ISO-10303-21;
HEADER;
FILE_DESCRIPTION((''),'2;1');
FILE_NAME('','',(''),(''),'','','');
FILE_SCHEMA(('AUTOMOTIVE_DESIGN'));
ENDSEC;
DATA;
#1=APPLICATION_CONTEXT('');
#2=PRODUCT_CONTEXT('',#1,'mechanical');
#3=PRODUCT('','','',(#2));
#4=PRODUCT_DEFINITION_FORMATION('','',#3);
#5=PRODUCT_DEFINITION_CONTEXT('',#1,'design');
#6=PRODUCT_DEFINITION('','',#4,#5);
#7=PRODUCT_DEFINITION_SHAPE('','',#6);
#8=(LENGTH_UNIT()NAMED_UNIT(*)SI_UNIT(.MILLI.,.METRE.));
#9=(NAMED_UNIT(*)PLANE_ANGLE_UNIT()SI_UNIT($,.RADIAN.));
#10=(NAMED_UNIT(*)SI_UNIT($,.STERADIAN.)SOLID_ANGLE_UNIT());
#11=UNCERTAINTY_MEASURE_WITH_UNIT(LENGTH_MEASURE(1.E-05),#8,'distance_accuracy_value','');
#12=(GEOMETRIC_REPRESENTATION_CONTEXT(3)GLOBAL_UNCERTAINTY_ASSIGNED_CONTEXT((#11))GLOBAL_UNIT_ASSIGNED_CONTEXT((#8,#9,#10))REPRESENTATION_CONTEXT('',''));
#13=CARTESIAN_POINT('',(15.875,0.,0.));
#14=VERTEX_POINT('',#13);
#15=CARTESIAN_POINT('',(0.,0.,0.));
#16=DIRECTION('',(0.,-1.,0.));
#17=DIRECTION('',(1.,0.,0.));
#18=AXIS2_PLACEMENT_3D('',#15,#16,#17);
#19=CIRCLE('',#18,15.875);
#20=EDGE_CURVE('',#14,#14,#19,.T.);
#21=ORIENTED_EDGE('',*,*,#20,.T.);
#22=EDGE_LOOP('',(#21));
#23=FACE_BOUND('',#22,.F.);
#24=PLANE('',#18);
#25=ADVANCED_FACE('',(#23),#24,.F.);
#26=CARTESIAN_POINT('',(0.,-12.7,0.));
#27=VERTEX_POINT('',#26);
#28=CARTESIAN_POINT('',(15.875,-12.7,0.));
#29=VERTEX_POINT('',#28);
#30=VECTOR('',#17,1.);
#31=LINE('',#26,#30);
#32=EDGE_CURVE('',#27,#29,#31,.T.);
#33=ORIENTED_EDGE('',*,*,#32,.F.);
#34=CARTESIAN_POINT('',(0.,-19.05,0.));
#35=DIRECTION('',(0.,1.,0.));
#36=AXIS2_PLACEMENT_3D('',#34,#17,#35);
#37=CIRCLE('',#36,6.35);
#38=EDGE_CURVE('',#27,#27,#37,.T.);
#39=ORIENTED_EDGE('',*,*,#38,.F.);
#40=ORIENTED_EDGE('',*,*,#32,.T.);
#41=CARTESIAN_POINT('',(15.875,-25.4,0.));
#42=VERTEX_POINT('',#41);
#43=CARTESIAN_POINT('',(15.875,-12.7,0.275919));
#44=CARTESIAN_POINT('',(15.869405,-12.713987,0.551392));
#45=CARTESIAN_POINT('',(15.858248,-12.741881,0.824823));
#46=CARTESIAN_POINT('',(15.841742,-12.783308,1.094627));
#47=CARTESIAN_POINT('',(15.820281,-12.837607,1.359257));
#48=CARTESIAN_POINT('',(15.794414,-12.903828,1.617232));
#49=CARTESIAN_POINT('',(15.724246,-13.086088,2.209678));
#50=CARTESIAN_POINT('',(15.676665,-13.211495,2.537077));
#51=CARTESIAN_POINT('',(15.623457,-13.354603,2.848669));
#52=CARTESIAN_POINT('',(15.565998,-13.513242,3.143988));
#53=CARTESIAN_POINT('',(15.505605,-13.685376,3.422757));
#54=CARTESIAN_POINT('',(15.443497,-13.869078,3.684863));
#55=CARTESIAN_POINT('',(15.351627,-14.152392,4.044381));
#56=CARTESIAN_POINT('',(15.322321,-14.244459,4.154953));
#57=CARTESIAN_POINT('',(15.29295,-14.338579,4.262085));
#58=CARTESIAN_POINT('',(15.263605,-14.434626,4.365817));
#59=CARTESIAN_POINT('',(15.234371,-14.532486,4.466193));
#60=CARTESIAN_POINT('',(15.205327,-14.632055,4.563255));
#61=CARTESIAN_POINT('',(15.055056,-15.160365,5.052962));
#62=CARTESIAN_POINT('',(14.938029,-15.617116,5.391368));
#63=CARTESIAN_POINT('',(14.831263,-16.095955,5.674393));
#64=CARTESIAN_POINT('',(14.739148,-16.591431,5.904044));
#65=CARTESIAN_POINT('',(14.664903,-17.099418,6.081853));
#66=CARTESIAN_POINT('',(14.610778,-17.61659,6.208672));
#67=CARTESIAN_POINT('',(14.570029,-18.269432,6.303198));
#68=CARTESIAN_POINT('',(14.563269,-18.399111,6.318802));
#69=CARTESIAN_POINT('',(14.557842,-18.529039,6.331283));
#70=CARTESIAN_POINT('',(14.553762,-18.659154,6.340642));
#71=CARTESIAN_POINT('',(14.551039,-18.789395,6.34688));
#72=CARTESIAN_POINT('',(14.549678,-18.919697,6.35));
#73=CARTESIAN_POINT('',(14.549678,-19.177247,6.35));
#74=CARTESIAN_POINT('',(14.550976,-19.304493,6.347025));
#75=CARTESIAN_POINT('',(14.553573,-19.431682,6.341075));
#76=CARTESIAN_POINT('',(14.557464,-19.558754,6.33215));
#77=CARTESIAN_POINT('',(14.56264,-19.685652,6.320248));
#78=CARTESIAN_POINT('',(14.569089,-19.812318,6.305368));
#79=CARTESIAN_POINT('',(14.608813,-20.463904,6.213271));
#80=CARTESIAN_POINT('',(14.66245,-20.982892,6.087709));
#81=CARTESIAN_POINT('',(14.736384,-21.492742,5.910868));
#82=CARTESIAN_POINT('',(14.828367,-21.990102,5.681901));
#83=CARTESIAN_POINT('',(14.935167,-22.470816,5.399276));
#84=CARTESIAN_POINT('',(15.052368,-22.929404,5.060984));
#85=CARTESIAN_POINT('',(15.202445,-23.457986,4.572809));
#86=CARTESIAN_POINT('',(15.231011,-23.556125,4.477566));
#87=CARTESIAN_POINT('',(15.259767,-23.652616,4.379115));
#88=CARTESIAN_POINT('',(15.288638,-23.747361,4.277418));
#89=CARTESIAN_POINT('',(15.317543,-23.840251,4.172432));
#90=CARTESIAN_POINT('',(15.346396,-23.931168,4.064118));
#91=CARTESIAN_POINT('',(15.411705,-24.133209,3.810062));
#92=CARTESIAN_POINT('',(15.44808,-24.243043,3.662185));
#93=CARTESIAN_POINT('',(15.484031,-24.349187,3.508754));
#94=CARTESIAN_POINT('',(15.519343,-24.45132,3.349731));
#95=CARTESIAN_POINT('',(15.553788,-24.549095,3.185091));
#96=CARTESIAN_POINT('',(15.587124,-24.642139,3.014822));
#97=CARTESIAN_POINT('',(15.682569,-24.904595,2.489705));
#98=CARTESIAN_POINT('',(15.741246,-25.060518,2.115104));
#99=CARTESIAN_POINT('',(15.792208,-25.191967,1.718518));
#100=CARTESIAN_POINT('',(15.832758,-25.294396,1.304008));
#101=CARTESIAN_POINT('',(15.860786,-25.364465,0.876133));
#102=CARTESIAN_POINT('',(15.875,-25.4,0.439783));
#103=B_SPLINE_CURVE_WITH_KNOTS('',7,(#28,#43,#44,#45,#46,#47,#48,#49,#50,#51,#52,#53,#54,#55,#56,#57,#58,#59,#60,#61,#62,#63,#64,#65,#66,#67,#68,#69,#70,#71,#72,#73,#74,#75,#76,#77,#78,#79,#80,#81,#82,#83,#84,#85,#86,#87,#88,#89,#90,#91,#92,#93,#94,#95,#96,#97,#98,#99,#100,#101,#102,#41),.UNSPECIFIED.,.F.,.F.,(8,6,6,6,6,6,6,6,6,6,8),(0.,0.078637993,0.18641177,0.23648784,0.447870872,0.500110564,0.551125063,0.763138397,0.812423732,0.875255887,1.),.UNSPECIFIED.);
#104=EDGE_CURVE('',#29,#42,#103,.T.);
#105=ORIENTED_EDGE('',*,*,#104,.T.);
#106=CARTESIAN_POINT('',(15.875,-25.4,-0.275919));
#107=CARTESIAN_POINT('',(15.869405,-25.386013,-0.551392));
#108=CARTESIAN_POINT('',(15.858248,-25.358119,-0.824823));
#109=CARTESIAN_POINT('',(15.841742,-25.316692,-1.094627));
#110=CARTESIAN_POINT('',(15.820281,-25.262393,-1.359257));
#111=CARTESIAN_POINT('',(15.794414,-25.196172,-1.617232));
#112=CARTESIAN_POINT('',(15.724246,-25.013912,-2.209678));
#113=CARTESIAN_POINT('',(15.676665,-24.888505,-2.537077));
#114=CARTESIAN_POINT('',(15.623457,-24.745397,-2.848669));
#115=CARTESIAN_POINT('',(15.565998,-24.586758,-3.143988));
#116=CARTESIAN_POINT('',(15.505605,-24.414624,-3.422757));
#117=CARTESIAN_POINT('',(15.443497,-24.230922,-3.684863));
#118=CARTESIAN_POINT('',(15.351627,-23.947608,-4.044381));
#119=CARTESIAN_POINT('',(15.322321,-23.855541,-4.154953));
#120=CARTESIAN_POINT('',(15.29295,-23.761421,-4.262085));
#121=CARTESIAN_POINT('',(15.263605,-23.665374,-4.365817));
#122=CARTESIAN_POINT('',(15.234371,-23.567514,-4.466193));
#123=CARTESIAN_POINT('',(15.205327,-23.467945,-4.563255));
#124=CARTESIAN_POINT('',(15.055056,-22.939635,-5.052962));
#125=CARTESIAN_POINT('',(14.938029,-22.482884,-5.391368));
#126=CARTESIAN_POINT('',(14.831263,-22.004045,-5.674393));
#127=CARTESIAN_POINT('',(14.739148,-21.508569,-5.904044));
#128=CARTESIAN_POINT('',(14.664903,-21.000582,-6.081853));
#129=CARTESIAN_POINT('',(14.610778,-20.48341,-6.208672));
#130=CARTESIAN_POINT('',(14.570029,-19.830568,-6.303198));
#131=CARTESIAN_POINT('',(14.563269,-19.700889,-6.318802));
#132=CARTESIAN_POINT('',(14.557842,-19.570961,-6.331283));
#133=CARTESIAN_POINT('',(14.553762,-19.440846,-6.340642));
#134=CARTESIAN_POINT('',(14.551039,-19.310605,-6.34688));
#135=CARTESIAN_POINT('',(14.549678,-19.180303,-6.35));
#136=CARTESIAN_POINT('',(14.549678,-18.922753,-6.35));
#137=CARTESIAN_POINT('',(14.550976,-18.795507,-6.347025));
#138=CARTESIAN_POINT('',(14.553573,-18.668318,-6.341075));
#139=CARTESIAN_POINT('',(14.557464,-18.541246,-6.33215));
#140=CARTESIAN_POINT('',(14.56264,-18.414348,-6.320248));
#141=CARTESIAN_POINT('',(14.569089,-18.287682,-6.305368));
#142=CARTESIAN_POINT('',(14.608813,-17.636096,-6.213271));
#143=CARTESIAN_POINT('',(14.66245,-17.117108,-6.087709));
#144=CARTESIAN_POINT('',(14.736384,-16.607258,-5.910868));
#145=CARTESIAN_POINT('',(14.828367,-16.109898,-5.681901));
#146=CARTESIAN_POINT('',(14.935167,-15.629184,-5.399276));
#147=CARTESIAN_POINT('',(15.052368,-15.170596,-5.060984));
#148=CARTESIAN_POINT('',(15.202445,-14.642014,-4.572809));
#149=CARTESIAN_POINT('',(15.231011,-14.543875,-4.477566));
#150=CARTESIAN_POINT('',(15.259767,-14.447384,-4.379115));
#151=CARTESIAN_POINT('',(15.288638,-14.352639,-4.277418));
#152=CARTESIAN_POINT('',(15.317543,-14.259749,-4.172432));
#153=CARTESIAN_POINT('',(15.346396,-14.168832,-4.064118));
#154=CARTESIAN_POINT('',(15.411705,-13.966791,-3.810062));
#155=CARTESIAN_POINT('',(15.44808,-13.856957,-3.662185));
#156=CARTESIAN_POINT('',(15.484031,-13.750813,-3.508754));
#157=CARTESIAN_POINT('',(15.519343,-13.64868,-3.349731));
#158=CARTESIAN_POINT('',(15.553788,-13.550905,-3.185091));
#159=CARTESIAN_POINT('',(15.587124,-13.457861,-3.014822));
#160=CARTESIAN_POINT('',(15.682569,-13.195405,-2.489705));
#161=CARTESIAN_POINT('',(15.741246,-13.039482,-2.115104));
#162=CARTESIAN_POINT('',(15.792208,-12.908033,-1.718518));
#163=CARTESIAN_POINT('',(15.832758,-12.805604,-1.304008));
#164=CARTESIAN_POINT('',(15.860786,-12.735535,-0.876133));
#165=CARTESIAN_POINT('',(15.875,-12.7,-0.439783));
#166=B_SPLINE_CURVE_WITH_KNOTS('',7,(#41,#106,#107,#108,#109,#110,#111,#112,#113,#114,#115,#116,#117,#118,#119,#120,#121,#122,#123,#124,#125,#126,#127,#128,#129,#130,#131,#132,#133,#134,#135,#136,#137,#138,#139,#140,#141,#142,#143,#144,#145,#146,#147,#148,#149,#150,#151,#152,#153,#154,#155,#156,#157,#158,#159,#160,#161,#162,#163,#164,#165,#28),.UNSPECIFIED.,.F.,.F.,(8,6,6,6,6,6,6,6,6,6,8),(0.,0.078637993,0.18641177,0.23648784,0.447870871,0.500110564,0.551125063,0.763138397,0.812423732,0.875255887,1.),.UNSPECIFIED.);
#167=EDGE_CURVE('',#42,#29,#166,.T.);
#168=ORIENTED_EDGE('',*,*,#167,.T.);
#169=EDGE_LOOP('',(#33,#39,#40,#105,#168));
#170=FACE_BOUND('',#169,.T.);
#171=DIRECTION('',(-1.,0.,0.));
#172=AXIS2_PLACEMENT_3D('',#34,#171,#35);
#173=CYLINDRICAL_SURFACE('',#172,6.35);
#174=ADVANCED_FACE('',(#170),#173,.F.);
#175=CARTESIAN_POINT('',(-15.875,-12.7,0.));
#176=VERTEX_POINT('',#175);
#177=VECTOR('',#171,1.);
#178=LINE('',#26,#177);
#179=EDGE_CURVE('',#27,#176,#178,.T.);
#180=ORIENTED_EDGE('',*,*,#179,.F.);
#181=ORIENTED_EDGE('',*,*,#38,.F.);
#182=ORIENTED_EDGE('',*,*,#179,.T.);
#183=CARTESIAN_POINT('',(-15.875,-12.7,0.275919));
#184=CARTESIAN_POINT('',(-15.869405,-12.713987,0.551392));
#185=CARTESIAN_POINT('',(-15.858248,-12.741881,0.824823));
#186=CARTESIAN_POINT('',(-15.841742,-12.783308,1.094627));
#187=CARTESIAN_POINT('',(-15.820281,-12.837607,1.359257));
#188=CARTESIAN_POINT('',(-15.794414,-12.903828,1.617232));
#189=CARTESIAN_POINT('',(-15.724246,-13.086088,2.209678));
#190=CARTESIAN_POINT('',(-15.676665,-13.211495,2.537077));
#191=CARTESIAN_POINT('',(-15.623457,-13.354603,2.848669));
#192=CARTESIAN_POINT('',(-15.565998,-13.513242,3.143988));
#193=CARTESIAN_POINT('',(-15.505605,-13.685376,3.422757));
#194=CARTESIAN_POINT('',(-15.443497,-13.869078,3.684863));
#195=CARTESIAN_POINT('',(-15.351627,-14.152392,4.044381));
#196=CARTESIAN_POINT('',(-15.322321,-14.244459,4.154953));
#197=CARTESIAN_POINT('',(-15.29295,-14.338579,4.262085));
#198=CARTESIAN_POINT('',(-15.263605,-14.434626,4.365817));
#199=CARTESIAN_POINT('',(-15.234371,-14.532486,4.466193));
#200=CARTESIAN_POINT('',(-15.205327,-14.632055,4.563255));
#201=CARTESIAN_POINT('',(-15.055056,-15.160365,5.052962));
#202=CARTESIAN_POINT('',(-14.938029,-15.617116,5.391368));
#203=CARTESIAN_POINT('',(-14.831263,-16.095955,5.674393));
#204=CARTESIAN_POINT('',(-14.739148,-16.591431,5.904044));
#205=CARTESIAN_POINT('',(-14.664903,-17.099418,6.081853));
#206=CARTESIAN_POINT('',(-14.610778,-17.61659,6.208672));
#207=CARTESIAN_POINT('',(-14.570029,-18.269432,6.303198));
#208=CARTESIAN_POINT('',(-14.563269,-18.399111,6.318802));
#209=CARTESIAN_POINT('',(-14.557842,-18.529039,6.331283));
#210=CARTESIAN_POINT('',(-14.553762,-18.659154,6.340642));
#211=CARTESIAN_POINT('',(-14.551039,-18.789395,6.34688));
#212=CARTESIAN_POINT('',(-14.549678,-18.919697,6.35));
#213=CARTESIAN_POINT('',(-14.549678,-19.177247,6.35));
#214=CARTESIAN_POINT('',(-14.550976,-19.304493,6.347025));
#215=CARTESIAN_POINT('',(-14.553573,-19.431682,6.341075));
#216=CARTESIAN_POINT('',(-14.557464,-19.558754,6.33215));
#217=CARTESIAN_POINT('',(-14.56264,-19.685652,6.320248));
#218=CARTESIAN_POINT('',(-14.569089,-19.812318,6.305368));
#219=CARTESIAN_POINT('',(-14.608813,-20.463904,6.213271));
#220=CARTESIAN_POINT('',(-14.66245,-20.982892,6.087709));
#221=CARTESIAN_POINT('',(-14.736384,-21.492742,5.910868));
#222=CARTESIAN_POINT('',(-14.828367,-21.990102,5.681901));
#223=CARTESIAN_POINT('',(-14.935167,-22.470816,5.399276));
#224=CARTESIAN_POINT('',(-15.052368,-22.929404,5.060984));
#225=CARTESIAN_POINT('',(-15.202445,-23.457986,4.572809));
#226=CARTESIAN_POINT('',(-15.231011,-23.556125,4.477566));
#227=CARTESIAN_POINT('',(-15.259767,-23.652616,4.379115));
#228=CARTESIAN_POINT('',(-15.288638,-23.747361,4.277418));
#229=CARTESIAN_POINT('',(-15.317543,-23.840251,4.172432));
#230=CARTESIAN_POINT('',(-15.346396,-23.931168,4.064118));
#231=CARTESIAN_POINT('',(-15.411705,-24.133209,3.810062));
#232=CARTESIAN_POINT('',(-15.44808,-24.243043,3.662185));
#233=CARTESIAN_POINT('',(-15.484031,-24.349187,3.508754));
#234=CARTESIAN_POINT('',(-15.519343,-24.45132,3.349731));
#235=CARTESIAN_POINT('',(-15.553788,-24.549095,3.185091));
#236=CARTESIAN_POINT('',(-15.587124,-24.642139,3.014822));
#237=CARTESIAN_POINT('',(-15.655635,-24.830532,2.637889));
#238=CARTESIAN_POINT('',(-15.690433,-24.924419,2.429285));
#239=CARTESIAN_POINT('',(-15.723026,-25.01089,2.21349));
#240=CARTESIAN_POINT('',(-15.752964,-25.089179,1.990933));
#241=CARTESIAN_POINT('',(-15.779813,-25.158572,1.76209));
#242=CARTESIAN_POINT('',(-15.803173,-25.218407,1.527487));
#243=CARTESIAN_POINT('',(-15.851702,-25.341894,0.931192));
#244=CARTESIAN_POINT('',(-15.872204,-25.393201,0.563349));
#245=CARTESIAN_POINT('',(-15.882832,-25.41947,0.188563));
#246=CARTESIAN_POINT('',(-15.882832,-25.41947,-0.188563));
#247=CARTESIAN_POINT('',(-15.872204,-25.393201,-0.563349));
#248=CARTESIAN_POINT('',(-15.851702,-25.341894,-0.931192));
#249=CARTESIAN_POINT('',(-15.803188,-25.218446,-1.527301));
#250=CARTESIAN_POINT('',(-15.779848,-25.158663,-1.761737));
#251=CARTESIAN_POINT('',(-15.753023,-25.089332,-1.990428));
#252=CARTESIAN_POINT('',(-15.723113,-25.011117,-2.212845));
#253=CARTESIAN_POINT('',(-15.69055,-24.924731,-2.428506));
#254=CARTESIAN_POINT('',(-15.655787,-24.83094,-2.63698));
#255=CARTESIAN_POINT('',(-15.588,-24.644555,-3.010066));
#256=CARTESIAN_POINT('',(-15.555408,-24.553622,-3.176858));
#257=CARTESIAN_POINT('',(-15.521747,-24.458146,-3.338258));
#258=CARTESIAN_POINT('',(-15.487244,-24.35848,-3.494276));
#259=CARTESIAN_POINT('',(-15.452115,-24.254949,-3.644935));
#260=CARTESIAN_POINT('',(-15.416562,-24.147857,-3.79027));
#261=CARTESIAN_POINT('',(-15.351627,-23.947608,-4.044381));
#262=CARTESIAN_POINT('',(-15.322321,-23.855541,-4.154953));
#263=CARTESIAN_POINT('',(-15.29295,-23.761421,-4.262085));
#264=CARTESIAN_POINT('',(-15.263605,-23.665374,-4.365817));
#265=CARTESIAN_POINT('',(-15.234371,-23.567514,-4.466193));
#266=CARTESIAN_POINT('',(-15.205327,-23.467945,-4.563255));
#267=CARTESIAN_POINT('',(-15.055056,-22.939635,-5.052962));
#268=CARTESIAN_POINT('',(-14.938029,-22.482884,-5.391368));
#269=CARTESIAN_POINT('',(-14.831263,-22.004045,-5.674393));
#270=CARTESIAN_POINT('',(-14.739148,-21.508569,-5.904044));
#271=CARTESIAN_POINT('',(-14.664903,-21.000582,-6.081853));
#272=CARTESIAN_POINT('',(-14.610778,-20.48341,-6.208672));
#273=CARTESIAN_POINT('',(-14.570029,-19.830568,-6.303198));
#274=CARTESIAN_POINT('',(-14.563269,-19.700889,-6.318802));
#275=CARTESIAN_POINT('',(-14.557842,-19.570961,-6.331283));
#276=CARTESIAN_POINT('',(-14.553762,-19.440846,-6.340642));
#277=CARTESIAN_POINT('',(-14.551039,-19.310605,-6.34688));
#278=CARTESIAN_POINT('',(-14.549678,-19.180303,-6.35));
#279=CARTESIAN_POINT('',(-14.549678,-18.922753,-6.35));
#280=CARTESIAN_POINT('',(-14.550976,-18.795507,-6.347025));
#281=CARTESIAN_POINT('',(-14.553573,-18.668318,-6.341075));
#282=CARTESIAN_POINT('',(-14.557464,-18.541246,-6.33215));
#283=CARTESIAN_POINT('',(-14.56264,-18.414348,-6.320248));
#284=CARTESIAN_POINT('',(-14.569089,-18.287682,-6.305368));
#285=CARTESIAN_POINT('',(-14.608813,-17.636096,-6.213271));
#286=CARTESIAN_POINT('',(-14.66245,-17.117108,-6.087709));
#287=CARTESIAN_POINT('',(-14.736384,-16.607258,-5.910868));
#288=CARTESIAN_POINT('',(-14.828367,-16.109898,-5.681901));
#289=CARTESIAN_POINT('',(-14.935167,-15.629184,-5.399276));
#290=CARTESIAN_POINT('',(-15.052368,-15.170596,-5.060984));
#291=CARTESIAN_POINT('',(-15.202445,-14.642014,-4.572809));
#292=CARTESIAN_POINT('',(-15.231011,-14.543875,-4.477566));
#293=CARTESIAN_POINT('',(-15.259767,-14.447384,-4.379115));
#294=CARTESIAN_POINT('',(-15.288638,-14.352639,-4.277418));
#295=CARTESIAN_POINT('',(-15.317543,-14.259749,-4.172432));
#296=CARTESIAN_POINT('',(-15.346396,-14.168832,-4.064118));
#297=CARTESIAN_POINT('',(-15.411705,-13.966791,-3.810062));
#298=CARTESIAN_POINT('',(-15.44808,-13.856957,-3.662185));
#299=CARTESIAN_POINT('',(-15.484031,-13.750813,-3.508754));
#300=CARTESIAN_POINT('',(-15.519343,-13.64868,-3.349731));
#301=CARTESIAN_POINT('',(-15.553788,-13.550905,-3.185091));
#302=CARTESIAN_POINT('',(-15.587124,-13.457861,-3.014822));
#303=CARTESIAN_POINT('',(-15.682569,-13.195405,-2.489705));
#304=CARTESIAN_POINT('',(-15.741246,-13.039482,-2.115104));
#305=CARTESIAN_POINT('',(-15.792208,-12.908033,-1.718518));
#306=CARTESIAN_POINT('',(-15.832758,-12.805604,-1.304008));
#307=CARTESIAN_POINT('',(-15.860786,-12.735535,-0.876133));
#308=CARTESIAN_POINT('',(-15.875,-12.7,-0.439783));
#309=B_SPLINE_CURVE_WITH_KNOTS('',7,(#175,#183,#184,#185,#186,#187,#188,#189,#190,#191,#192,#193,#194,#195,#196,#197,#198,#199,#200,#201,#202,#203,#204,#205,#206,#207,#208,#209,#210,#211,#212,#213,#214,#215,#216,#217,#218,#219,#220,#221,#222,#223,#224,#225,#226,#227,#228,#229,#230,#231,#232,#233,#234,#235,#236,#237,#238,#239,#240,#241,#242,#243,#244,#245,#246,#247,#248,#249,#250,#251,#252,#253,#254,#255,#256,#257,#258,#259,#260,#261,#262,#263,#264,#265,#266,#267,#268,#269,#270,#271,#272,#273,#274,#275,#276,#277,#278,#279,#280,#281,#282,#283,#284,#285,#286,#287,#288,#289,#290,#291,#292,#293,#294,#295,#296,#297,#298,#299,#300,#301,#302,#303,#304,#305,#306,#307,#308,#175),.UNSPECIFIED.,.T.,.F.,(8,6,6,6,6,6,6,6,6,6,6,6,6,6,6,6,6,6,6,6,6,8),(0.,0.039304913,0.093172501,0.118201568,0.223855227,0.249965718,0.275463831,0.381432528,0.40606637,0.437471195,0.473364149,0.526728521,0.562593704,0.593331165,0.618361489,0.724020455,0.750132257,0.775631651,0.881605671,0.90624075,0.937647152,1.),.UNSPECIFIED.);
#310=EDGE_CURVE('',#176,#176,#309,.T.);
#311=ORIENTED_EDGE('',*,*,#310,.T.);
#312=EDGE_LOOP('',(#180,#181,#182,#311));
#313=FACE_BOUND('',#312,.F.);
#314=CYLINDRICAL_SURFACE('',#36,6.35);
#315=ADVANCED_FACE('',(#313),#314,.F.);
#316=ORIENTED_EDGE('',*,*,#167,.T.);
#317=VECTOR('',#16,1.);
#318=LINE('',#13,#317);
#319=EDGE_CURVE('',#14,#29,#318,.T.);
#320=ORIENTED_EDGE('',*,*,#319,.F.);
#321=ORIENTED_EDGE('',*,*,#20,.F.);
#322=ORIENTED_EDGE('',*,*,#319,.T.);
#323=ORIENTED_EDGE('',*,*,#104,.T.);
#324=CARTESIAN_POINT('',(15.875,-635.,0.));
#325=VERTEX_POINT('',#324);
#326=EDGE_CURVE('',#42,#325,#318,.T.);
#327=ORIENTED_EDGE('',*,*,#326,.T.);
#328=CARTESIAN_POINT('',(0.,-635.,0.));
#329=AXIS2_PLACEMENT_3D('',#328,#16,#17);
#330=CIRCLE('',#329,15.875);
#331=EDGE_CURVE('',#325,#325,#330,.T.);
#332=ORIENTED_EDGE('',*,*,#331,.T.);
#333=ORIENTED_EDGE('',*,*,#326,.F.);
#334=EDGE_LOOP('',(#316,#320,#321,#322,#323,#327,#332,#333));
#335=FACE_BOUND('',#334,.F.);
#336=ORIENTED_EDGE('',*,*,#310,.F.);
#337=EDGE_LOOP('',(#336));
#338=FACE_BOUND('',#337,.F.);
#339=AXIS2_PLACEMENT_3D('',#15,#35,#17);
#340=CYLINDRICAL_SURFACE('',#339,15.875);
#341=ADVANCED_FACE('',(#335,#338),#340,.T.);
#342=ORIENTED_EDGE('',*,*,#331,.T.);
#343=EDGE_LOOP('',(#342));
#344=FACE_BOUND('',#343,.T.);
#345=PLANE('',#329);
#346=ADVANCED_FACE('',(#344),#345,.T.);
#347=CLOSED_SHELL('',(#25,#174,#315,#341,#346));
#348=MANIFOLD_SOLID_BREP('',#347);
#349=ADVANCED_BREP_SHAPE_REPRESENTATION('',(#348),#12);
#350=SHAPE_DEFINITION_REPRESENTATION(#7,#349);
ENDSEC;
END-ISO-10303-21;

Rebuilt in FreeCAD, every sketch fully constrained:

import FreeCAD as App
import Part
import Sketcher
Q = App.Units.Quantity

doc = App.newDocument("Part")
params = doc.addObject("Spreadsheet::Sheet", "Params")
for row, (alias, value) in enumerate([
    ("sketch1_diameter", "1.25 in"),
    ("pad1_length", "25 in"),
    ("sketch2_diameter", "0.5 in"),
], start=1):
    params.set(f"A{row}", alias)
    params.set(f"B{row}", "=" + value)
    params.setAlias(f"B{row}", alias)

body = doc.addObject("PartDesign::Body", "Body")

# Sketch on XZ plane
sketch1 = body.newObject("Sketcher::SketchObject", "Sketch")
sketch1.AttachmentSupport = (doc.getObject("XZ_Plane"), [""])
sketch1.MapMode = "FlatFace"
sketch1.addGeometry(Part.Circle(App.Vector(0, 0, 0), App.Vector(0, 0, 1), 16), False)
sketch1.addConstraint([
    Sketcher.Constraint("Coincident", 0, 3, -1, 1),
    Sketcher.Constraint("Diameter", 0, Q("1.25 in")),
])
sketch1.setExpression("Constraints[1]", "Params.sketch1_diameter")
pad1 = body.newObject("PartDesign::Pad", "Pad")
pad1.Profile = sketch1
pad1.setExpression("Length", "Params.pad1_length")

# Sketch on YZ plane
sketch2 = body.newObject("Sketcher::SketchObject", "Sketch001")
sketch2.AttachmentSupport = (doc.getObject("YZ_Plane"), [""])
sketch2.MapMode = "FlatFace"
sketch2.addGeometry(Part.Circle(App.Vector(-19, 0, 0), App.Vector(0, 0, 1), 6), False)
sketch2.addConstraint([
    Sketcher.Constraint("PointOnObject", 0, 3, -1),
    Sketcher.Constraint("Diameter", 0, Q("0.5 in")),
    Sketcher.Constraint("DistanceX", 0, 3, -1, 1, Q("0.75 in")),
])
sketch2.setExpression("Constraints[1]", "Params.sketch2_diameter")
pocket1 = body.newObject("PartDesign::Pocket", "Pocket")
pocket1.Profile = sketch2
pocket1.Type = "ThroughAll"
pocket1.Midplane = True

doc.recompute()
